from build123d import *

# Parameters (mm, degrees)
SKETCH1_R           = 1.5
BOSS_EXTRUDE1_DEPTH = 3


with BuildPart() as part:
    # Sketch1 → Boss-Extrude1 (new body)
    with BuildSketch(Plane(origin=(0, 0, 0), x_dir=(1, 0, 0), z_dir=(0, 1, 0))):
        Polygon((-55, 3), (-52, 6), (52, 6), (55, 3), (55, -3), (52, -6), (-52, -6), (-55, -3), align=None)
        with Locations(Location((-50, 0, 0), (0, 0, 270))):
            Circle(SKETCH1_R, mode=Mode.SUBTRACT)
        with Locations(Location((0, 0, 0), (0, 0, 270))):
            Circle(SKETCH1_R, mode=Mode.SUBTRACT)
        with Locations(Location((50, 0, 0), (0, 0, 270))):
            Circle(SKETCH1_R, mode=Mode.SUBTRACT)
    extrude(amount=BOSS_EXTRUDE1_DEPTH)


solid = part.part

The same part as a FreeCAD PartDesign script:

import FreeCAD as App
import Part
import Sketcher

V = App.Vector

doc = App.newDocument("Part")
params = doc.addObject("Spreadsheet::Sheet", "Params")
for row, (alias, value) in enumerate([
    ("sketch1_diameter", "3 mm"),
    ("sketch1_width", "104 mm"),
    ("sketch1_height", "6 mm"),
    ("pad1_length", "3 mm"),
], start=1):
    params.set(f"A{row}", alias)
    params.set(f"B{row}", "=" + value)
    params.setAlias(f"B{row}", alias)

body = doc.addObject("PartDesign::Body", "Body")

sketch1 = body.newObject("Sketcher::SketchObject", "Sketch")
sketch1.AttachmentSupport = (doc.getObject("XZ_Plane"), [""])
sketch1.MapMode = "FlatFace"
sketch1.addGeometry([
    Part.LineSegment(V(-52, -6, 0), V(-55, -3, 0)),
    Part.LineSegment(V(-55, -3, 0), V(-55, 3, 0)),
    Part.LineSegment(V(-55, 3, 0), V(-52, 6, 0)),
    Part.LineSegment(V(-52, 6, 0), V(52, 6, 0)),
    Part.LineSegment(V(52, 6, 0), V(55, 3, 0)),
    Part.LineSegment(V(55, 3, 0), V(55, -3, 0)),
    Part.LineSegment(V(55, -3, 0), V(52, -6, 0)),
    Part.LineSegment(V(52, -6, 0), V(-52, -6, 0)),
    Part.Circle(V(50, 0, 0), V(0, 0, 1), 1.5),
    Part.Circle(V(0, 0, 0), V(0, 0, 1), 1.5),
    Part.Circle(V(-50, 0, 0), V(0, 0, 1), 1.5),
], False)
sketch1.addConstraint([
    Sketcher.Constraint("Coincident", 0, 2, 1, 1),
    Sketcher.Constraint("Coincident", 1, 2, 2, 1),
    Sketcher.Constraint("Coincident", 2, 2, 3, 1),
    Sketcher.Constraint("Coincident", 3, 2, 4, 1),
    Sketcher.Constraint("Coincident", 4, 2, 5, 1),
    Sketcher.Constraint("Coincident", 5, 2, 6, 1),
    Sketcher.Constraint("Coincident", 6, 2, 7, 1),
    Sketcher.Constraint("Coincident", 7, 2, 0, 1),
    Sketcher.Constraint("Vertical", 1),
    Sketcher.Constraint("Horizontal", 3),
    Sketcher.Constraint("Vertical", 5),
    Sketcher.Constraint("Horizontal", 7),
    Sketcher.Constraint("Coincident", 9, 3, -1, 1),
    Sketcher.Constraint("Equal", 8, 9),
    Sketcher.Constraint("Equal", 9, 10),
    Sketcher.Constraint("Symmetric", 8, 3, 10, 3, -1, 1),
    Sketcher.Constraint("Symmetric", 0, 2, 4, 2, -1, 1),
    Sketcher.Constraint("Symmetric", 2, 2, 6, 2, -1, 1),
    Sketcher.Constraint("PointOnObject", 8, 3, -1),
    Sketcher.Constraint("Perpendicular", 0, 2),
    Sketcher.Constraint("Perpendicular", 2, 4),
    Sketcher.Constraint("Perpendicular", 4, 6),
    Sketcher.Constraint("Horizontal", 1, 2, 4, 2),
    Sketcher.Constraint("Vertical", 3, 2, 6, 2),
    Sketcher.Constraint("Diameter", 8, 3.0),
    Sketcher.Constraint("DistanceX", 3, 1, 3, 2, 104.0),
    Sketcher.Constraint("DistanceY", 1, 1, 1, 2, 6.0),
    Sketcher.Constraint("DistanceX", -1, 1, 8, 3, 50.0),
    Sketcher.Constraint("DistanceX", 0, 2, -1, 1, 55.0),
])
sketch1.setExpression("Constraints[24]", "Params.sketch1_diameter")
sketch1.setExpression("Constraints[25]", "Params.sketch1_width")
sketch1.setExpression("Constraints[26]", "Params.sketch1_height")
pad1 = body.newObject("PartDesign::Pad", "Pad")
pad1.Profile = sketch1
pad1.setExpression("Length", "Params.pad1_length")
pad1.Reversed = True

doc.recompute()
